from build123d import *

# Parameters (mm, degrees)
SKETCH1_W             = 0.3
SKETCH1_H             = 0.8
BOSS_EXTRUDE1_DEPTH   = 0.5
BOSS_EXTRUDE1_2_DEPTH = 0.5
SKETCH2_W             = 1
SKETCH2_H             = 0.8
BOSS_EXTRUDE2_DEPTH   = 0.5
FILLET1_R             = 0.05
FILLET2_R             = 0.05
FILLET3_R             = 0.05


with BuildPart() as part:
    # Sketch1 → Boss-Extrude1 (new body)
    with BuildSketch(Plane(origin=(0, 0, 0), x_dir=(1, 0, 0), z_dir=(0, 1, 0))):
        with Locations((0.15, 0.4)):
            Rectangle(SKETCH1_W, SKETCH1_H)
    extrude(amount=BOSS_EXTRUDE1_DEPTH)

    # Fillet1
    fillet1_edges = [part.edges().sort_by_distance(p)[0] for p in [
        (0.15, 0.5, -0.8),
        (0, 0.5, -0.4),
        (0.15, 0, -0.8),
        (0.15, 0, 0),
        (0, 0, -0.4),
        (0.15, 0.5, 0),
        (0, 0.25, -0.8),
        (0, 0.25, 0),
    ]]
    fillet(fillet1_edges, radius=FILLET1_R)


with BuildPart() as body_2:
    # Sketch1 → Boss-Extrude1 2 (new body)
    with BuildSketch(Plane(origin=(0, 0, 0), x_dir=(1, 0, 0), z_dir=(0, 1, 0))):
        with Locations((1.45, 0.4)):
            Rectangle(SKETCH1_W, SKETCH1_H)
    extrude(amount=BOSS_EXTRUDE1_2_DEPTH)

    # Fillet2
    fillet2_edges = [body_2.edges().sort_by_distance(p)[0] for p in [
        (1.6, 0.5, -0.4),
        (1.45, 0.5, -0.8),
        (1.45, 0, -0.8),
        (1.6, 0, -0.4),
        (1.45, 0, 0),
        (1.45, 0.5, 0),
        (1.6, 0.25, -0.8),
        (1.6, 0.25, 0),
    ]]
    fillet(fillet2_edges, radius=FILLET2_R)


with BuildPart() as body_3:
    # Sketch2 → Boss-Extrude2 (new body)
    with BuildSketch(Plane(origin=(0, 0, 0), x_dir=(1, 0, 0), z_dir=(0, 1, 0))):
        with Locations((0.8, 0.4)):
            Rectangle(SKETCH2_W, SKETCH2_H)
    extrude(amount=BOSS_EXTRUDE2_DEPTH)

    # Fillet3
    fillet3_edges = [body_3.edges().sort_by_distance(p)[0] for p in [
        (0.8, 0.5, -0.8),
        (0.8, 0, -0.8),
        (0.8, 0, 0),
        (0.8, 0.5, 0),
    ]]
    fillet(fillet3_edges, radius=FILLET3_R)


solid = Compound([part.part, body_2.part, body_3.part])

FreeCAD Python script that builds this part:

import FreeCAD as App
import Part
import Sketcher

V = App.Vector


def edges_at(feature, points):
    """Names of the edges that pass closest to the given points."""
    edges = feature.Shape.Edges
    near = lambda p: min(range(len(edges)), key=lambda i: edges[i].distToShape(Part.Vertex(*p))[0])
    return sorted({f"Edge{near(p) + 1}" for p in points})


def add_polygon(sketch, points):
    """Adds a closed chain of lines whose ends are joined by coincident constraints."""
    first, n = sketch.GeometryCount, len(points)
    for a, b in zip(points, points[1:] + points[:1]):
        sketch.addGeometry(Part.LineSegment(App.Vector(*a, 0), App.Vector(*b, 0)), False)
    for i in range(n):
        sketch.addConstraint(Sketcher.Constraint("Coincident", first + i, 2, first + (i + 1) % n, 1))

doc = App.newDocument("Part")
params = doc.addObject("Spreadsheet::Sheet", "Params")
for row, (alias, value) in enumerate([
    ("sketch1_width", "0.3 mm"),
    ("sketch1_height", "0.8 mm"),
    ("pad1_length", "0.5 mm"),
    ("fillet_radius", "0.05 mm"),
    ("sketch2_width", "0.3 mm"),
    ("sketch2_height", "0.8 mm"),
    ("pad2_length", "0.5 mm"),
    ("fillet2_radius", "0.05 mm"),
    ("sketch3_width", "1 mm"),
    ("sketch3_height", "0.8 mm"),
    ("pad3_length", "0.5 mm"),
    ("fillet3_radius", "0.05 mm"),
], start=1):
    params.set(f"A{row}", alias)
    params.set(f"B{row}", "=" + value)
    params.setAlias(f"B{row}", alias)

body = doc.addObject("PartDesign::Body", "Body")

# Sketch on XZ plane
sketch1 = doc.addObject("Sketcher::SketchObject", "Sketch")
body.addObject(sketch1)
sketch1.AttachmentSupport = (doc.XZ_Plane, [""])
sketch1.MapMode = "FlatFace"
add_polygon(sketch1, [(0, -0.8), (0, 0), (0.3, 0), (0.3, -0.8)])  # lines 0-3
sketch1.addConstraint([
    Sketcher.Constraint("Vertical", 0),
    Sketcher.Constraint("Horizontal", 1),
    Sketcher.Constraint("Vertical", 2),
    Sketcher.Constraint("Horizontal", 3),
    Sketcher.Constraint("Coincident", 0, 2, -1, 1),
    Sketcher.Constraint("DistanceX", 1, 1, 1, 2, 0.3),
    Sketcher.Constraint("DistanceY", 0, 1, 0, 2, 0.8),
])
sketch1.setExpression("Constraints[9]", "Params.sketch1_width")
sketch1.setExpression("Constraints[10]", "Params.sketch1_height")
pad1 = doc.addObject("PartDesign::Pad", "Pad")
body.addObject(pad1)
pad1.Profile = sketch1
pad1.setExpression("Length", "Params.pad1_length")
pad1.Reversed = True
doc.recompute()

fillet = doc.addObject("PartDesign::Fillet", "Fillet")
body.addObject(fillet)
fillet.Base = (pad1, edges_at(pad1, [
    (0.15, 0.5, -0.8),
    (0, 0.5, -0.4),
    (0.15, 0, -0.8),
    (0.15, 0, 0),
    (0, 0, -0.4),
    (0.15, 0.5, 0),
    (0, 0.25, -0.8),
    (0, 0.25, 0),
]))
fillet.setExpression("Radius", "Params.fillet_radius")
body2 = doc.addObject("PartDesign::Body", "Body001")

# Sketch on XZ plane
sketch2 = doc.addObject("Sketcher::SketchObject", "Sketch001")
body2.addObject(sketch2)
sketch2.AttachmentSupport = (doc.getObject("XZ_Plane001"), [""])
sketch2.MapMode = "FlatFace"
add_polygon(sketch2, [(1.3, -0.8), (1.3, 0), (1.6, 0), (1.6, -0.8)])  # lines 0-3
sketch2.addConstraint([
    Sketcher.Constraint("Vertical", 0),
    Sketcher.Constraint("Horizontal", 1),
    Sketcher.Constraint("Vertical", 2),
    Sketcher.Constraint("Horizontal", 3),
    Sketcher.Constraint("PointOnObject", 0, 2, -1),
    Sketcher.Constraint("DistanceX", 1, 1, 1, 2, 0.3),
    Sketcher.Constraint("DistanceY", 0, 1, 0, 2, 0.8),
    Sketcher.Constraint("DistanceX", -1, 1, 0, 2, 1.3),
])
sketch2.setExpression("Constraints[9]", "Params.sketch2_width")
sketch2.setExpression("Constraints[10]", "Params.sketch2_height")
pad2 = doc.addObject("PartDesign::Pad", "Pad001")
body2.addObject(pad2)
pad2.Profile = sketch2
pad2.setExpression("Length", "Params.pad2_length")
pad2.Reversed = True
doc.recompute()

fillet2 = doc.addObject("PartDesign::Fillet", "Fillet001")
body2.addObject(fillet2)
fillet2.Base = (pad2, edges_at(pad2, [
    (1.6, 0.5, -0.4),
    (1.45, 0.5, -0.8),
    (1.45, 0, -0.8),
    (1.6, 0, -0.4),
    (1.45, 0, 0),
    (1.45, 0.5, 0),
    (1.6, 0.25, -0.8),
    (1.6, 0.25, 0),
]))
fillet2.setExpression("Radius", "Params.fillet2_radius")
body3 = doc.addObject("PartDesign::Body", "Body002")

# Sketch on XZ plane
sketch3 = doc.addObject("Sketcher::SketchObject", "Sketch002")
body3.addObject(sketch3)
sketch3.AttachmentSupport = (doc.getObject("XZ_Plane002"), [""])
sketch3.MapMode = "FlatFace"
add_polygon(sketch3, [(0.3, -0.8), (0.3, 0), (1.3, 0), (1.3, -0.8)])  # lines 0-3
sketch3.addConstraint([
    Sketcher.Constraint("Vertical", 0),
    Sketcher.Constraint("Horizontal", 1),
    Sketcher.Constraint("Vertical", 2),
    Sketcher.Constraint("Horizontal", 3),
    Sketcher.Constraint("PointOnObject", 0, 2, -1),
    Sketcher.Constraint("DistanceX", 1, 1, 1, 2, 1.0),
    Sketcher.Constraint("DistanceY", 0, 1, 0, 2, 0.8),
    Sketcher.Constraint("DistanceX", -1, 1, 0, 2, 0.3),
])
sketch3.setExpression("Constraints[9]", "Params.sketch3_width")
sketch3.setExpression("Constraints[10]", "Params.sketch3_height")
pad3 = doc.addObject("PartDesign::Pad", "Pad002")
body3.addObject(pad3)
pad3.Profile = sketch3
pad3.setExpression("Length", "Params.pad3_length")
pad3.Reversed = True
doc.recompute()

fillet3 = doc.addObject("PartDesign::Fillet", "Fillet002")
body3.addObject(fillet3)
fillet3.Base = (pad3, edges_at(pad3, [
    (0.8, 0.5, -0.8),
    (0.8, 0, -0.8),
    (0.8, 0, 0),
    (0.8, 0.5, 0),
]))
fillet3.setExpression("Radius", "Params.fillet3_radius")

doc.recompute()
